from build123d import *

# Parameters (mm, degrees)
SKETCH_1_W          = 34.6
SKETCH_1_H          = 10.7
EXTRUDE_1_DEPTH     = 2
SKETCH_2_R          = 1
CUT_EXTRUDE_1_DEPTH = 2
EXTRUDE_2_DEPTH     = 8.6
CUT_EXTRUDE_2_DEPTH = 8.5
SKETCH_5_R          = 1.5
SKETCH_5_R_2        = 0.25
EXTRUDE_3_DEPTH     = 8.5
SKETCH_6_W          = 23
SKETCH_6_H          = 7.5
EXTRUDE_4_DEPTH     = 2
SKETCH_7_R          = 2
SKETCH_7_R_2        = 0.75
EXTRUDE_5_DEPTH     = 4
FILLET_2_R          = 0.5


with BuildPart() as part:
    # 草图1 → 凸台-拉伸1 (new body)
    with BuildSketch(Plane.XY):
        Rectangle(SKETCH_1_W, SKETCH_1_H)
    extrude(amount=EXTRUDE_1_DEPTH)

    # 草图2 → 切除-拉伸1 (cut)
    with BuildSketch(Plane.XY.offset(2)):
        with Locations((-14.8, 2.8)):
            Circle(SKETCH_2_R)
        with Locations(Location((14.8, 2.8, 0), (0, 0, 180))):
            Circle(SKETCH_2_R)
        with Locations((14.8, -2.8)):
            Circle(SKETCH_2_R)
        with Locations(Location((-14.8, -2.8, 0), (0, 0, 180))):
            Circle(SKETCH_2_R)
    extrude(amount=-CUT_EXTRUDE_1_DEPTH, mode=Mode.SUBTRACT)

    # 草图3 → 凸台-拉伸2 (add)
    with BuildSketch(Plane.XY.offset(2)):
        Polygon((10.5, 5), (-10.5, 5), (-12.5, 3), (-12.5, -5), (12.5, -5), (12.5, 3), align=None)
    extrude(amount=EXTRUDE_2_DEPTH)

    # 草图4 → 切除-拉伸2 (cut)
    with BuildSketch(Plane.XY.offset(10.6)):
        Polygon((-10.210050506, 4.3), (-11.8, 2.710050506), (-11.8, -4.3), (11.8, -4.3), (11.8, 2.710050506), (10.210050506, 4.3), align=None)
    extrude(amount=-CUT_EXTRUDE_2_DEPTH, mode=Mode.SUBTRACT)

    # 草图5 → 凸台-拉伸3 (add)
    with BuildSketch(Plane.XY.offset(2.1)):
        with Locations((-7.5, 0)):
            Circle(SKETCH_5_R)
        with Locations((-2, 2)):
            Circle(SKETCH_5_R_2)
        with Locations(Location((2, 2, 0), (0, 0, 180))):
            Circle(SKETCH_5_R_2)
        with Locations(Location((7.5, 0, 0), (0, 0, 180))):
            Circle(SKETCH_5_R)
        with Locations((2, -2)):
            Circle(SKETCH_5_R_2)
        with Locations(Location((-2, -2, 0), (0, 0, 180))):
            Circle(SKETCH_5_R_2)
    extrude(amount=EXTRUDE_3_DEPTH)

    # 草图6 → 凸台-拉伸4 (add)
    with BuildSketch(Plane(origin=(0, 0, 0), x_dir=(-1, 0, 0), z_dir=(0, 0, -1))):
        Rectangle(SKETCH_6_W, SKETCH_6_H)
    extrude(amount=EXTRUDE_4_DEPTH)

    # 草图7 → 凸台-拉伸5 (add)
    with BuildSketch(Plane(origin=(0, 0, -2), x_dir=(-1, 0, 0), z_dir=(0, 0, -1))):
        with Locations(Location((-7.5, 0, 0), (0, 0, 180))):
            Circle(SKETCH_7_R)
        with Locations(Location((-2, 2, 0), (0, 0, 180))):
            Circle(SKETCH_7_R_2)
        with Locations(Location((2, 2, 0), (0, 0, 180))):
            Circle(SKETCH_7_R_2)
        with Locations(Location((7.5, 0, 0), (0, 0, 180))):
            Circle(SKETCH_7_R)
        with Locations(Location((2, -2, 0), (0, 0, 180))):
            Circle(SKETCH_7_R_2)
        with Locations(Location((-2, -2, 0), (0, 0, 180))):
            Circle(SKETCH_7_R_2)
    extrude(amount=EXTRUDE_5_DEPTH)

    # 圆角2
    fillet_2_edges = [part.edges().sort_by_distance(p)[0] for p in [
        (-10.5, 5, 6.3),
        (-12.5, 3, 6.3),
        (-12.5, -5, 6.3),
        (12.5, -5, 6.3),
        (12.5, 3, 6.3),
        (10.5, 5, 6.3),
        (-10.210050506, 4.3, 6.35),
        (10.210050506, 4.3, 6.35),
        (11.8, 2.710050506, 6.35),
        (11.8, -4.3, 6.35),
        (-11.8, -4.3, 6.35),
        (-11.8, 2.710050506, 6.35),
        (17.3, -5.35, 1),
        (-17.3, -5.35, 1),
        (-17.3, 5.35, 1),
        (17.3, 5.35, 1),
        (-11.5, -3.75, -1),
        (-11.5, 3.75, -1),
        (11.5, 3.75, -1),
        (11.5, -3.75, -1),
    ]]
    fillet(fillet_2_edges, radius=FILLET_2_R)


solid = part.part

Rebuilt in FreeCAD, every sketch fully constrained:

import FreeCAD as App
import Part
import Sketcher
Q = App.Units.Quantity


def edges_at(feature, points):
    """Names of the edges that pass closest to the given points."""
    edges = feature.Shape.Edges
    near = lambda p: min(range(len(edges)), key=lambda i: edges[i].distToShape(Part.Vertex(*p))[0])
    return sorted({f"Edge{near(p) + 1}" for p in points})


def add_polygon(sketch, points):
    """Adds a closed chain of lines whose ends are joined by coincident constraints."""
    first, n = sketch.GeometryCount, len(points)
    for a, b in zip(points, points[1:] + points[:1]):
        sketch.addGeometry(Part.LineSegment(App.Vector(*a, 0), App.Vector(*b, 0)), False)
    for i in range(n):
        sketch.addConstraint(Sketcher.Constraint("Coincident", first + i, 2, first + (i + 1) % n, 1))

doc = App.newDocument("Part")
body = doc.addObject("PartDesign::Body", "Body")

sketch1 = body.newObject("Sketcher::SketchObject", "Sketch")
sketch1.AttachmentSupport = (doc.getObject("XY_Plane"), [""])
sketch1.MapMode = "FlatFace"
add_polygon(sketch1, [(-17, 5), (-17, -5), (17, -5), (17, 5)])
sketch1.addConstraint([
    Sketcher.Constraint("Vertical", 0),
    Sketcher.Constraint("Horizontal", 1),
    Sketcher.Constraint("Vertical", 2),
    Sketcher.Constraint("Horizontal", 3),
    Sketcher.Constraint("Symmetric", 0, 2, 2, 2, -1, 1),
    Sketcher.Constraint("DistanceX", 1, 1, 1, 2, Q("34.6 mm")),
    Sketcher.Constraint("DistanceY", 0, 2, 0, 1, Q("10.7 mm")),
])
pad1 = body.newObject("PartDesign::Pad", "Pad")
pad1.Profile = sketch1
pad1.Length = 2

sketch2 = body.newObject("Sketcher::SketchObject", "Sketch001")
sketch2.AttachmentSupport = (doc.getObject("XY_Plane"), [""])
sketch2.MapMode = "FlatFace"
sketch2.AttachmentOffset = App.Placement(App.Vector(0, 0, 2), App.Rotation())
sketch2.addGeometry([
    Part.Circle(App.Vector(-14.8, 2.8, 0), App.Vector(0, 0, 1), 1),
    Part.Circle(App.Vector(14.8, 2.8, 0), App.Vector(0, 0, 1), 1),
    Part.Circle(App.Vector(14.8, -2.8, 0), App.Vector(0, 0, 1), 1),
    Part.Circle(App.Vector(-14.8, -2.8, 0), App.Vector(0, 0, 1), 1),
], False)
sketch2.addConstraint([
    Sketcher.Constraint("Equal", 0, 1),
    Sketcher.Constraint("Equal", 1, 2),
    Sketcher.Constraint("Equal", 2, 3),
    Sketcher.Constraint("Symmetric", 0, 3, 2, 3, -1, 1),
    Sketcher.Constraint("Symmetric", 1, 3, 3, 3, -1, 1),
    Sketcher.Constraint("Symmetric", 0, 3, 1, 3, -2),
    Sketcher.Constraint("Diameter", 0, Q("2 mm")),
    Sketcher.Constraint("DistanceX", 0, 3, -1, 1, Q("14.8 mm")),
    Sketcher.Constraint("DistanceY", -1, 1, 0, 3, Q("2.8 mm")),
])
pocket1 = body.newObject("PartDesign::Pocket", "Pocket")
pocket1.Profile = sketch2
pocket1.Length = 2

sketch3 = body.newObject("Sketcher::SketchObject", "Sketch002")
sketch3.AttachmentSupport = (doc.getObject("XY_Plane"), [""])
sketch3.MapMode = "FlatFace"
sketch3.AttachmentOffset = App.Placement(App.Vector(0, 0, 2), App.Rotation())
add_polygon(sketch3, [(10.5, 5), (-10.5, 5), (-12.5, 3), (-12.5, -5), (12.5, -5), (12.5, 3)])
sketch3.addConstraint([
    Sketcher.Constraint("Horizontal", 0),
    Sketcher.Constraint("Vertical", 2),
    Sketcher.Constraint("Horizontal", 3),
    Sketcher.Constraint("Vertical", 4),
    Sketcher.Constraint("Symmetric", 1, 2, 4, 2, -2),
    Sketcher.Constraint("Perpendicular", 1, 5),
    Sketcher.Constraint("Equal", 1, 5),
    Sketcher.Constraint("DistanceX", 0, 2, 0, 1, Q("21 mm")),
    Sketcher.Constraint("DistanceX", 3, 1, 3, 2, Q("25 mm")),
    Sketcher.Constraint("DistanceY", 2, 2, 2, 1, Q("8 mm")),
    Sketcher.Constraint("DistanceY", -1, 1, 0, 2, Q("5 mm")),
])
pad2 = body.newObject("PartDesign::Pad", "Pad001")
pad2.Profile = sketch3
pad2.Length = 8.6

sketch4 = body.newObject("Sketcher::SketchObject", "Sketch003")
sketch4.AttachmentSupport = (doc.getObject("XY_Plane"), [""])
sketch4.MapMode = "FlatFace"
sketch4.AttachmentOffset = App.Placement(App.Vector(0, 0, 10.6), App.Rotation())
add_polygon(sketch4, [(-10.2, 4.3), (-11.8, 2.7), (-11.8, -4.3), (11.8, -4.3), (11.8, 2.7), (10.2, 4.3)])
sketch4.addConstraint([
    Sketcher.Constraint("Vertical", 1),
    Sketcher.Constraint("Horizontal", 2),
    Sketcher.Constraint("Vertical", 3),
    Sketcher.Constraint("Horizontal", 5),
    Sketcher.Constraint("Symmetric", 0, 2, 3, 2, -2),
    Sketcher.Constraint("Perpendicular", 0, 4),
    Sketcher.Constraint("Equal", 0, 4),
    Sketcher.Constraint("DistanceX", 2, 1, 2, 2, Q("23.6 mm")),
    Sketcher.Constraint("DistanceY", 1, 2, -1, 1, Q("4.3 mm")),
    Sketcher.Constraint("DistanceY", -1, 1, 4, 2, Q("4.3 mm")),
    Sketcher.Constraint("DistanceX", 5, 2, 5, 1, Q("20.420101 mm")),
])
pocket2 = body.newObject("PartDesign::Pocket", "Pocket001")
pocket2.Profile = sketch4
pocket2.Length = 8.5

sketch5 = body.newObject("Sketcher::SketchObject", "Sketch004")
sketch5.AttachmentSupport = (doc.getObject("XY_Plane"), [""])
sketch5.MapMode = "FlatFace"
sketch5.AttachmentOffset = App.Placement(App.Vector(0, 0, 2.1), App.Rotation())
sketch5.addGeometry([
    Part.Circle(App.Vector(-7.5, 0, 0), App.Vector(0, 0, 1), 1.5),
    Part.Circle(App.Vector(-2, 2, 0), App.Vector(0, 0, 1), 0.25),
    Part.Circle(App.Vector(2, 2, 0), App.Vector(0, 0, 1), 0.25),
    Part.Circle(App.Vector(7.5, 0, 0), App.Vector(0, 0, 1), 1.5),
    Part.Circle(App.Vector(2, -2, 0), App.Vector(0, 0, 1), 0.25),
    Part.Circle(App.Vector(-2, -2, 0), App.Vector(0, 0, 1), 0.25),
], False)
sketch5.addConstraint([
    Sketcher.Constraint("Equal", 1, 2),
    Sketcher.Constraint("Equal", 0, 3),
    Sketcher.Constraint("Equal", 2, 4),
    Sketcher.Constraint("Equal", 4, 5),
    Sketcher.Constraint("Symmetric", 0, 3, 3, 3, -1, 1),
    Sketcher.Constraint("Symmetric", 1, 3, 4, 3, -1, 1),
    Sketcher.Constraint("Symmetric", 2, 3, 5, 3, -1, 1),
    Sketcher.Constraint("Symmetric", 1, 3, 2, 3, -2),
    Sketcher.Constraint("PointOnObject", 0, 3, -1),
    Sketcher.Constraint("Diameter", 0, Q("3 mm")),
    Sketcher.Constraint("Diameter", 1, Q("0.5 mm")),
    Sketcher.Constraint("DistanceX", 1, 3, -1, 1, Q("2 mm")),
    Sketcher.Constraint("DistanceY", -1, 1, 1, 3, Q("2 mm")),
    Sketcher.Constraint("DistanceX", 0, 3, 3, 3, Q("15 mm")),
])
pad3 = body.newObject("PartDesign::Pad", "Pad002")
pad3.Profile = sketch5
pad3.Length = 8.5

sketch6 = body.newObject("Sketcher::SketchObject", "Sketch005")
sketch6.AttachmentSupport = (doc.getObject("XY_Plane"), [""])
sketch6.MapMode = "FlatFace"
add_polygon(sketch6, [(12, 4), (12, -4), (-12, -4), (-12, 4)])
sketch6.addConstraint([
    Sketcher.Constraint("Vertical", 0),
    Sketcher.Constraint("Horizontal", 1),
    Sketcher.Constraint("Vertical", 2),
    Sketcher.Constraint("Horizontal", 3),
    Sketcher.Constraint("Symmetric", 0, 2, 2, 2, -1, 1),
    Sketcher.Constraint("DistanceX", 1, 2, 1, 1, Q("23 mm")),
    Sketcher.Constraint("DistanceY", 0, 2, 0, 1, Q("7.5 mm")),
])
pad4 = body.newObject("PartDesign::Pad", "Pad003")
pad4.Profile = sketch6
pad4.Length = 2
pad4.Reversed = True

sketch7 = body.newObject("Sketcher::SketchObject", "Sketch006")
sketch7.AttachmentSupport = (doc.getObject("XY_Plane"), [""])
sketch7.MapMode = "FlatFace"
sketch7.AttachmentOffset = App.Placement(App.Vector(0, 0, -2), App.Rotation())
sketch7.addGeometry([
    Part.Circle(App.Vector(7.5, 0, 0), App.Vector(0, 0, 1), 2),
    Part.Circle(App.Vector(2, 2, 0), App.Vector(0, 0, 1), 0.8),
    Part.Circle(App.Vector(-2, 2, 0), App.Vector(0, 0, 1), 0.8),
    Part.Circle(App.Vector(-7.5, 0, 0), App.Vector(0, 0, 1), 2),
    Part.Circle(App.Vector(-2, -2, 0), App.Vector(0, 0, 1), 0.8),
    Part.Circle(App.Vector(2, -2, 0), App.Vector(0, 0, 1), 0.8),
], False)
sketch7.addConstraint([
    Sketcher.Constraint("Equal", 1, 2),
    Sketcher.Constraint("Equal", 0, 3),
    Sketcher.Constraint("Equal", 2, 4),
    Sketcher.Constraint("Equal", 4, 5),
    Sketcher.Constraint("Symmetric", 0, 3, 3, 3, -1, 1),
    Sketcher.Constraint("Symmetric", 1, 3, 4, 3, -1, 1),
    Sketcher.Constraint("Symmetric", 2, 3, 5, 3, -1, 1),
    Sketcher.Constraint("Symmetric", 1, 3, 2, 3, -2),
    Sketcher.Constraint("PointOnObject", 0, 3, -1),
    Sketcher.Constraint("Diameter", 0, Q("4 mm")),
    Sketcher.Constraint("Diameter", 1, Q("1.5 mm")),
    Sketcher.Constraint("DistanceX", -1, 1, 1, 3, Q("2 mm")),
    Sketcher.Constraint("DistanceY", -1, 1, 1, 3, Q("2 mm")),
    Sketcher.Constraint("DistanceX", 3, 3, 0, 3, Q("15 mm")),
])
pad5 = body.newObject("PartDesign::Pad", "Pad004")
pad5.Profile = sketch7
pad5.Length = 4
pad5.Reversed = True
doc.recompute()

fillet = body.newObject("PartDesign::Fillet", "Fillet")
fillet.Base = (pad5, edges_at(pad5, [
    (-10.5, 5, 6.3),
    (-12.5, 3, 6.3),
    (-12.5, -5, 6.3),
    (12.5, -5, 6.3),
    (12.5, 3, 6.3),
    (10.5, 5, 6.3),
    (-10.21, 4.3, 6.35),
    (10.21, 4.3, 6.35),
    (11.8, 2.71, 6.35),
    (11.8, -4.3, 6.35),
    (-11.8, -4.3, 6.35),
    (-11.8, 2.71, 6.35),
    (17.3, -5.35, 1),
    (-17.3, -5.35, 1),
    (-17.3, 5.35, 1),
    (17.3, 5.35, 1),
    (-11.5, -3.75, -1),
    (-11.5, 3.75, -1),
    (11.5, 3.75, -1),
    (11.5, -3.75, -1),
]))
fillet.Radius = 0.5

doc.recompute()
